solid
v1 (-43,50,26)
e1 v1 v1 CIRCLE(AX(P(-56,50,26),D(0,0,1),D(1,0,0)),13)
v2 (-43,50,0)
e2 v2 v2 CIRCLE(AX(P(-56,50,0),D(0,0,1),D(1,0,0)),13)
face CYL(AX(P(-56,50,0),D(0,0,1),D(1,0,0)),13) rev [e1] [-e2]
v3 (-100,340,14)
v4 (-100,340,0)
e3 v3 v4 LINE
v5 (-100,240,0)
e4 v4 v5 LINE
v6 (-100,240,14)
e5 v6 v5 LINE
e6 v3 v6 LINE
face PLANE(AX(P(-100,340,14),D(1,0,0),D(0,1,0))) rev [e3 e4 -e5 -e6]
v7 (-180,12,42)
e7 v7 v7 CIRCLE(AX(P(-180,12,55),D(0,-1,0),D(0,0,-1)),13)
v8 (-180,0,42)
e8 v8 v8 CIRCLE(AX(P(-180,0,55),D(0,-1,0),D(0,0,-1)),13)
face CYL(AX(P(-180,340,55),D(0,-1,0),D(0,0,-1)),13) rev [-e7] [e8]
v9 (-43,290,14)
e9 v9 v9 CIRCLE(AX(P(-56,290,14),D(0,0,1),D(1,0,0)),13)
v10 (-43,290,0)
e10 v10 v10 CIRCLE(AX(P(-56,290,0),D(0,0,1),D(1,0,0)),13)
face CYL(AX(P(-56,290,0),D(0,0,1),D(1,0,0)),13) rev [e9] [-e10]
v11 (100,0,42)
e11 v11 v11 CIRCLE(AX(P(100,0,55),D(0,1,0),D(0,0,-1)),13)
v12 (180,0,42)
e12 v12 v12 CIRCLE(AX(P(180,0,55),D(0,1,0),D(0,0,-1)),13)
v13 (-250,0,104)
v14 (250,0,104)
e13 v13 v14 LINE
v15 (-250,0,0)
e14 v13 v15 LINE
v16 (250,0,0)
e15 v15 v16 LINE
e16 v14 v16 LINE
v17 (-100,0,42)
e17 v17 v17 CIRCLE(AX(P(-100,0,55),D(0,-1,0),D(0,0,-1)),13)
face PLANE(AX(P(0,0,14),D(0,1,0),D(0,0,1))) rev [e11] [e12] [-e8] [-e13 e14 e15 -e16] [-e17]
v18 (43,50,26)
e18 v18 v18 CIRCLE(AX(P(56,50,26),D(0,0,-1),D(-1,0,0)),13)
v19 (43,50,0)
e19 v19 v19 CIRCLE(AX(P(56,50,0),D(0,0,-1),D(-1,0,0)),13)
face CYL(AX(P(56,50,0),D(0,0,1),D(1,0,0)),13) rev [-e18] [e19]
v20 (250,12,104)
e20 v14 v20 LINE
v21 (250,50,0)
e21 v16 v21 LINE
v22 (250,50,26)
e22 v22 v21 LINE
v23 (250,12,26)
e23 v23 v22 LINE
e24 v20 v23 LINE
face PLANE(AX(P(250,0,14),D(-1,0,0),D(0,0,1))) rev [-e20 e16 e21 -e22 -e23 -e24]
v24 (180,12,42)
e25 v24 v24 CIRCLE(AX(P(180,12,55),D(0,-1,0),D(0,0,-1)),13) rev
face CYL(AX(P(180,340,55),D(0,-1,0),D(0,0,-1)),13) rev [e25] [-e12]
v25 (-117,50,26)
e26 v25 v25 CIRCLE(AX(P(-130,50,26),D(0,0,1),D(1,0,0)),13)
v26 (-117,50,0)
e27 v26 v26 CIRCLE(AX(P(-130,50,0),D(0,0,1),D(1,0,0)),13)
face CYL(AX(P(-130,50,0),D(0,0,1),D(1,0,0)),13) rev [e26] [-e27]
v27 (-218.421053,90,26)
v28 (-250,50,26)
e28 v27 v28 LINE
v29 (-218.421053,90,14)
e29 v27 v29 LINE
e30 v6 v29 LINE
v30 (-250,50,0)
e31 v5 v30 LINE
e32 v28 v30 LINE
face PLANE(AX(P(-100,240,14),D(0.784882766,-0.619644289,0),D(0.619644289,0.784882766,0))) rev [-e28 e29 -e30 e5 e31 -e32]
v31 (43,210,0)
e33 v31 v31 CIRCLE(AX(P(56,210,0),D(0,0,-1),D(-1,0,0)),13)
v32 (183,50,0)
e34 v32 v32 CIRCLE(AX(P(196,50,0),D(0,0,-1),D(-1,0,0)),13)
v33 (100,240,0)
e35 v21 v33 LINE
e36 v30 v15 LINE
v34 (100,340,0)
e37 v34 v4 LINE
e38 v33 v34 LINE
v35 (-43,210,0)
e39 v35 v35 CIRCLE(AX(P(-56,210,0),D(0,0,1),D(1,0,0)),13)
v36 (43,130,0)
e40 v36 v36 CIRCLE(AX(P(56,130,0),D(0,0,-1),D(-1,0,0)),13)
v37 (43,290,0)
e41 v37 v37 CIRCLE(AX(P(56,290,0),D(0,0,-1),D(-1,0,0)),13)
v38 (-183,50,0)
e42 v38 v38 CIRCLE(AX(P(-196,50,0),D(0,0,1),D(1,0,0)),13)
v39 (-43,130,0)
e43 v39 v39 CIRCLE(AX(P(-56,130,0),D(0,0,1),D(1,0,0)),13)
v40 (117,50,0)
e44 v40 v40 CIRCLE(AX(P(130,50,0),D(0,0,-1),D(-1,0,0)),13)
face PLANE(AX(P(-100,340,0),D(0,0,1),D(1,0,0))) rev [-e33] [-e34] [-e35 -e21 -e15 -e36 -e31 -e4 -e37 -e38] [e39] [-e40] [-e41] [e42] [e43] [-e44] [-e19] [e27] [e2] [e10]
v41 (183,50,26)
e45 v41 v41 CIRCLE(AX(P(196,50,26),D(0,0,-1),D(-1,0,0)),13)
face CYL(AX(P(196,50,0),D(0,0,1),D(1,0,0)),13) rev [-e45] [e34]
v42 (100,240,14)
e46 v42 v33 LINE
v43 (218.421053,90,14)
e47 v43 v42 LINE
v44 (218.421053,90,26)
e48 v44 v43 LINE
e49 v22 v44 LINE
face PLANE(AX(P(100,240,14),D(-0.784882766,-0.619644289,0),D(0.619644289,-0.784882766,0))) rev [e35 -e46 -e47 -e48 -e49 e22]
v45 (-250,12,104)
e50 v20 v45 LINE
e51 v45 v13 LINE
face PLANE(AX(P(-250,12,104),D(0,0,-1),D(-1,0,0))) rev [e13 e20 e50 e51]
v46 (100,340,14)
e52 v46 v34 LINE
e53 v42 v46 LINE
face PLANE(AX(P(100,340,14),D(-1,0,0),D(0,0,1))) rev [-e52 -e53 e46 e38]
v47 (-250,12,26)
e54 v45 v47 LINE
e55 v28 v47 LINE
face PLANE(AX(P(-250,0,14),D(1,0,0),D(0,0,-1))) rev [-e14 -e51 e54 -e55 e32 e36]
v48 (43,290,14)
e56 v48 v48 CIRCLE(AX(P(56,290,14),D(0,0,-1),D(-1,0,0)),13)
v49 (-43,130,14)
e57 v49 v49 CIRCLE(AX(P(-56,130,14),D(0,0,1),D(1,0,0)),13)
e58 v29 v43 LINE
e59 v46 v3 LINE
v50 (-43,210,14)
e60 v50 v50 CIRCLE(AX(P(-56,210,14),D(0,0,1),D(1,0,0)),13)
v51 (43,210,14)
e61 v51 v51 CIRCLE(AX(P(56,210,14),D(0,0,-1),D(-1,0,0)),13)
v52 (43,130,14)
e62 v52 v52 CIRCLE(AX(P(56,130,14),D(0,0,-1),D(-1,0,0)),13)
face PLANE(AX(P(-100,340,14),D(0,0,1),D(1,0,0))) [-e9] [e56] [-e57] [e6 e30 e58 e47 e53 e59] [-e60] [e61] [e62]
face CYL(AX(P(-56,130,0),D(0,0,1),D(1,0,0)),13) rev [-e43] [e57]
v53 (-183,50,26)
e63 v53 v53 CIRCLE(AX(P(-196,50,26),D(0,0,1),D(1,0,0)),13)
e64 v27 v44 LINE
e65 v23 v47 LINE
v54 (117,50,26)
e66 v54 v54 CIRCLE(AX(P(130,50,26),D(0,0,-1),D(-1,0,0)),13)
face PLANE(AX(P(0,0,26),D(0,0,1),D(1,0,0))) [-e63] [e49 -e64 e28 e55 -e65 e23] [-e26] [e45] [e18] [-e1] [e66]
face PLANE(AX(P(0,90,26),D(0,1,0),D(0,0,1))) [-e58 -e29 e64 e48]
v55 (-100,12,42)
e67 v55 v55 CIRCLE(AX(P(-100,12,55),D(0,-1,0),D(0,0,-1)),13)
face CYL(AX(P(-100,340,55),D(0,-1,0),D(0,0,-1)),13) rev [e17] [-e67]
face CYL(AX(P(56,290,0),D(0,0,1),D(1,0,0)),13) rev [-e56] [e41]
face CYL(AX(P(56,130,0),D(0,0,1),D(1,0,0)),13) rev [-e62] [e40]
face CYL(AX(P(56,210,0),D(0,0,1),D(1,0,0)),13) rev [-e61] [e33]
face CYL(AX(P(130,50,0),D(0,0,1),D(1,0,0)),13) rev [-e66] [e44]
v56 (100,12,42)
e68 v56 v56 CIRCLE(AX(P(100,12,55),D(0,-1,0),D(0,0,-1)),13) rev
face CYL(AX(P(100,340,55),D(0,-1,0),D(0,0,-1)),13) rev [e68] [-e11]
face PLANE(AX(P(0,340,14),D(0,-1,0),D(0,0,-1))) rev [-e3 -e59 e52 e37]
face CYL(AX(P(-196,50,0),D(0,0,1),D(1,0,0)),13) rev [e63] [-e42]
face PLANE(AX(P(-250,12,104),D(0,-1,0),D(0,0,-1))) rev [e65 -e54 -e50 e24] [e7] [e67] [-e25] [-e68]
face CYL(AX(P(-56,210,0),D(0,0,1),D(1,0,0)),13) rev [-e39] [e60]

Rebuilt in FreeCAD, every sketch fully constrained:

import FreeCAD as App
import Part
import Sketcher

V = App.Vector


def add_polygon(sketch, points):
    """Adds a closed chain of lines whose ends are joined by coincident constraints."""
    first, n = sketch.GeometryCount, len(points)
    for a, b in zip(points, points[1:] + points[:1]):
        sketch.addGeometry(Part.LineSegment(App.Vector(*a, 0), App.Vector(*b, 0)), False)
    for i in range(n):
        sketch.addConstraint(Sketcher.Constraint("Coincident", first + i, 2, first + (i + 1) % n, 1))

doc = App.newDocument("Part")
body = doc.addObject("PartDesign::Body", "Body")

# Sketch on XY plane
sketch1 = body.newObject("Sketcher::SketchObject", "Sketch")
sketch1.AttachmentSupport = (doc.getObject("XY_Plane"), [""])
sketch1.MapMode = "FlatFace"
add_polygon(sketch1, [(250, 0), (250, 50), (100, 240), (100, 340), (-100, 340), (-100, 240), (-250, 50), (-250, 0)])  # lines 0-7
sketch1.addConstraint([
    Sketcher.Constraint("Vertical", 0),
    Sketcher.Constraint("Vertical", 2),
    Sketcher.Constraint("Horizontal", 3),
    Sketcher.Constraint("Vertical", 4),
    Sketcher.Constraint("Vertical", 6),
    Sketcher.Constraint("Horizontal", 7),
    Sketcher.Constraint("Symmetric", 6, 2, 7, 2, -1, 1),
    Sketcher.Constraint("Symmetric", 1, 2, 4, 2, -2),
    Sketcher.Constraint("Horizontal", 0, 2, 5, 2),
    Sketcher.Constraint("DistanceX", 3, 2, 3, 1, 200.0),
    Sketcher.Constraint("DistanceX", 7, 1, 7, 2, 500.0),
    Sketcher.Constraint("DistanceY", 0, 1, 0, 2, 50.0),
    Sketcher.Constraint("DistanceY", 2, 1, 2, 2, 100.0),
    Sketcher.Constraint("DistanceY", -1, 1, 1, 2, 240.0),
])
pad1 = body.newObject("PartDesign::Pad", "Pad")
pad1.Profile = sketch1
pad1.Length = 14

# Sketch on XY plane
sketch2 = body.newObject("Sketcher::SketchObject", "Sketch001")
sketch2.AttachmentSupport = (doc.getObject("XY_Plane"), [""])
sketch2.MapMode = "FlatFace"
sketch2.AttachmentOffset = App.Placement(V(0, 0, 14), App.Rotation())
sketch2.addGeometry(Part.Circle(V(-56, 290, 0), V(0, 0, 1), 13), False)
sketch2.addConstraint([
    Sketcher.Constraint("Diameter", 0, 26.0),
    Sketcher.Constraint("DistanceX", 0, 3, -1, 1, 56.0),
    Sketcher.Constraint("DistanceY", -1, 1, 0, 3, 290.0),
])
pocket1 = body.newObject("PartDesign::Pocket", "Pocket")
pocket1.Profile = sketch2
pocket1.Type = "ThroughAll"
doc.recompute()

linearpattern = body.newObject("PartDesign::LinearPattern", "LinearPattern")
linearpattern.Originals = [pocket1]
linearpattern.Direction = (doc.getObject("Y_Axis"), [""])
linearpattern.Mode = "offset"
linearpattern.Offset = 80
linearpattern.Occurrences = 3
linearpattern.Reversed = True
body.Tip = linearpattern
doc.recompute()

mirrored = body.newObject("PartDesign::Mirrored", "Mirrored")
mirrored.Originals = [pocket1]
mirrored.MirrorPlane = (doc.getObject("YZ_Plane"), [""])
body.Tip = mirrored

# Sketch on XY plane
sketch3 = body.newObject("Sketcher::SketchObject", "Sketch002")
sketch3.AttachmentSupport = (doc.getObject("XY_Plane"), [""])
sketch3.MapMode = "FlatFace"
sketch3.AttachmentOffset = App.Placement(V(0, 0, 14), App.Rotation())
sketch3.addGeometry(Part.Circle(V(56, 210, 0), V(0, 0, 1), 13), False)
sketch3.addConstraint([
    Sketcher.Constraint("Diameter", 0, 26.0),
    Sketcher.Constraint("DistanceX", -1, 1, 0, 3, 56.0),
    Sketcher.Constraint("DistanceY", -1, 1, 0, 3, 210.0),
])
pocket2 = body.newObject("PartDesign::Pocket", "Pocket001")
pocket2.Profile = sketch3
pocket2.Type = "ThroughAll"

# Sketch on XY plane
sketch4 = body.newObject("Sketcher::SketchObject", "Sketch003")
sketch4.AttachmentSupport = (doc.getObject("XY_Plane"), [""])
sketch4.MapMode = "FlatFace"
sketch4.AttachmentOffset = App.Placement(V(0, 0, 14), App.Rotation())
sketch4.addGeometry(Part.Circle(V(56, 130, 0), V(0, 0, 1), 13), False)
sketch4.addConstraint([
    Sketcher.Constraint("Diameter", 0, 26.0),
    Sketcher.Constraint("DistanceX", -1, 1, 0, 3, 56.0),
    Sketcher.Constraint("DistanceY", -1, 1, 0, 3, 130.0),
])
pocket3 = body.newObject("PartDesign::Pocket", "Pocket002")
pocket3.Profile = sketch4
pocket3.Type = "ThroughAll"

# Sketch on XY plane
sketch5 = body.newObject("Sketcher::SketchObject", "Sketch004")
sketch5.AttachmentSupport = (doc.getObject("XY_Plane"), [""])
sketch5.MapMode = "FlatFace"
sketch5.AttachmentOffset = App.Placement(V(0, 0, 14), App.Rotation())
add_polygon(sketch5, [(218.421053, 90), (-218.421053, 90), (-250, 50), (-250, 0), (250, 0), (250, 50)])  # lines 0-5
sketch5.addConstraint([
    Sketcher.Constraint("Horizontal", 0),
    Sketcher.Constraint("Vertical", 2),
    Sketcher.Constraint("Horizontal", 3),
    Sketcher.Constraint("Vertical", 4),
    Sketcher.Constraint("Symmetric", 2, 2, 3, 2, -1, 1),
    Sketcher.Constraint("Horizontal", 1, 2, 4, 2),
    Sketcher.Constraint("Equal", 1, 5),
    Sketcher.Constraint("DistanceX", 3, 1, 3, 2, 500.0),
    Sketcher.Constraint("DistanceY", 2, 2, 2, 1, 50.0),
    Sketcher.Constraint("DistanceY", -1, 1, 0, 2, 90.0),
    Sketcher.Constraint("DistanceX", 0, 2, 0, 1, 436.842105),
])
pad2 = body.newObject("PartDesign::Pad", "Pad001")
pad2.Profile = sketch5
pad2.Length = 12

# Sketch on XY plane
sketch6 = body.newObject("Sketcher::SketchObject", "Sketch005")
sketch6.AttachmentSupport = (doc.getObject("XY_Plane"), [""])
sketch6.MapMode = "FlatFace"
sketch6.AttachmentOffset = App.Placement(V(0, 0, 26), App.Rotation())
sketch6.addGeometry([
    Part.Circle(V(-56, 50, 0), V(0, 0, 1), 13),
    Part.Circle(V(-130, 50, 0), V(0, 0, 1), 13),
    Part.Circle(V(-196, 50, 0), V(0, 0, 1), 13),
], False)
sketch6.addConstraint([
    Sketcher.Constraint("Equal", 0, 1),
    Sketcher.Constraint("Equal", 1, 2),
    Sketcher.Constraint("Horizontal", 0, 3, 1, 3),
    Sketcher.Constraint("Horizontal", 1, 3, 2, 3),
    Sketcher.Constraint("Diameter", 0, 26.0),
    Sketcher.Constraint("DistanceX", 0, 3, -1, 1, 56.0),
    Sketcher.Constraint("DistanceY", -1, 1, 0, 3, 50.0),
    Sketcher.Constraint("DistanceX", 1, 3, -1, 1, 130.0),
    Sketcher.Constraint("DistanceX", 2, 3, -1, 1, 196.0),
])
pocket4 = body.newObject("PartDesign::Pocket", "Pocket003")
pocket4.Profile = sketch6
pocket4.Type = "ThroughAll"
doc.recompute()

mirrored2 = body.newObject("PartDesign::Mirrored", "Mirrored001")
mirrored2.Originals = [pocket4]
mirrored2.MirrorPlane = (doc.getObject("YZ_Plane"), [""])
body.Tip = mirrored2

# Sketch on XY plane
sketch7 = body.newObject("Sketcher::SketchObject", "Sketch006")
sketch7.AttachmentSupport = (doc.getObject("XY_Plane"), [""])
sketch7.MapMode = "FlatFace"
sketch7.AttachmentOffset = App.Placement(V(0, 0, 26), App.Rotation())
add_polygon(sketch7, [(-250, 12), (-250, 0), (250, 0), (250, 12)])  # lines 0-3
sketch7.addConstraint([
    Sketcher.Constraint("Vertical", 0),
    Sketcher.Constraint("Horizontal", 1),
    Sketcher.Constraint("Vertical", 2),
    Sketcher.Constraint("Horizontal", 3),
    Sketcher.Constraint("Symmetric", 0, 2, 1, 2, -1, 1),
    Sketcher.Constraint("DistanceX", 1, 1, 1, 2, 500.0),
    Sketcher.Constraint("DistanceY", 0, 2, 0, 1, 12.0),
])
pad3 = body.newObject("PartDesign::Pad", "Pad002")
pad3.Profile = sketch7
pad3.Length = 78

# Sketch on XZ plane
sketch8 = body.newObject("Sketcher::SketchObject", "Sketch007")
sketch8.AttachmentSupport = (doc.getObject("XZ_Plane"), [""])
sketch8.MapMode = "FlatFace"
sketch8.addGeometry([
    Part.Circle(V(-180, 55, 0), V(0, 0, 1), 13),
    Part.Circle(V(-100, 55, 0), V(0, 0, 1), 13),
], False)
sketch8.addConstraint([
    Sketcher.Constraint("Equal", 0, 1),
    Sketcher.Constraint("Horizontal", 0, 3, 1, 3),
    Sketcher.Constraint("Diameter", 0, 26.0),
    Sketcher.Constraint("DistanceX", 0, 3, -1, 1, 180.0),
    Sketcher.Constraint("DistanceY", -1, 1, 0, 3, 55.0),
    Sketcher.Constraint("DistanceX", 1, 3, -1, 1, 100.0),
])
pocket5 = body.newObject("PartDesign::Pocket", "Pocket004")
pocket5.Profile = sketch8
pocket5.Type = "ThroughAll"
doc.recompute()

mirrored3 = body.newObject("PartDesign::Mirrored", "Mirrored002")
mirrored3.Originals = [pocket5]
mirrored3.MirrorPlane = (doc.getObject("YZ_Plane"), [""])
body.Tip = mirrored3

doc.recompute()
